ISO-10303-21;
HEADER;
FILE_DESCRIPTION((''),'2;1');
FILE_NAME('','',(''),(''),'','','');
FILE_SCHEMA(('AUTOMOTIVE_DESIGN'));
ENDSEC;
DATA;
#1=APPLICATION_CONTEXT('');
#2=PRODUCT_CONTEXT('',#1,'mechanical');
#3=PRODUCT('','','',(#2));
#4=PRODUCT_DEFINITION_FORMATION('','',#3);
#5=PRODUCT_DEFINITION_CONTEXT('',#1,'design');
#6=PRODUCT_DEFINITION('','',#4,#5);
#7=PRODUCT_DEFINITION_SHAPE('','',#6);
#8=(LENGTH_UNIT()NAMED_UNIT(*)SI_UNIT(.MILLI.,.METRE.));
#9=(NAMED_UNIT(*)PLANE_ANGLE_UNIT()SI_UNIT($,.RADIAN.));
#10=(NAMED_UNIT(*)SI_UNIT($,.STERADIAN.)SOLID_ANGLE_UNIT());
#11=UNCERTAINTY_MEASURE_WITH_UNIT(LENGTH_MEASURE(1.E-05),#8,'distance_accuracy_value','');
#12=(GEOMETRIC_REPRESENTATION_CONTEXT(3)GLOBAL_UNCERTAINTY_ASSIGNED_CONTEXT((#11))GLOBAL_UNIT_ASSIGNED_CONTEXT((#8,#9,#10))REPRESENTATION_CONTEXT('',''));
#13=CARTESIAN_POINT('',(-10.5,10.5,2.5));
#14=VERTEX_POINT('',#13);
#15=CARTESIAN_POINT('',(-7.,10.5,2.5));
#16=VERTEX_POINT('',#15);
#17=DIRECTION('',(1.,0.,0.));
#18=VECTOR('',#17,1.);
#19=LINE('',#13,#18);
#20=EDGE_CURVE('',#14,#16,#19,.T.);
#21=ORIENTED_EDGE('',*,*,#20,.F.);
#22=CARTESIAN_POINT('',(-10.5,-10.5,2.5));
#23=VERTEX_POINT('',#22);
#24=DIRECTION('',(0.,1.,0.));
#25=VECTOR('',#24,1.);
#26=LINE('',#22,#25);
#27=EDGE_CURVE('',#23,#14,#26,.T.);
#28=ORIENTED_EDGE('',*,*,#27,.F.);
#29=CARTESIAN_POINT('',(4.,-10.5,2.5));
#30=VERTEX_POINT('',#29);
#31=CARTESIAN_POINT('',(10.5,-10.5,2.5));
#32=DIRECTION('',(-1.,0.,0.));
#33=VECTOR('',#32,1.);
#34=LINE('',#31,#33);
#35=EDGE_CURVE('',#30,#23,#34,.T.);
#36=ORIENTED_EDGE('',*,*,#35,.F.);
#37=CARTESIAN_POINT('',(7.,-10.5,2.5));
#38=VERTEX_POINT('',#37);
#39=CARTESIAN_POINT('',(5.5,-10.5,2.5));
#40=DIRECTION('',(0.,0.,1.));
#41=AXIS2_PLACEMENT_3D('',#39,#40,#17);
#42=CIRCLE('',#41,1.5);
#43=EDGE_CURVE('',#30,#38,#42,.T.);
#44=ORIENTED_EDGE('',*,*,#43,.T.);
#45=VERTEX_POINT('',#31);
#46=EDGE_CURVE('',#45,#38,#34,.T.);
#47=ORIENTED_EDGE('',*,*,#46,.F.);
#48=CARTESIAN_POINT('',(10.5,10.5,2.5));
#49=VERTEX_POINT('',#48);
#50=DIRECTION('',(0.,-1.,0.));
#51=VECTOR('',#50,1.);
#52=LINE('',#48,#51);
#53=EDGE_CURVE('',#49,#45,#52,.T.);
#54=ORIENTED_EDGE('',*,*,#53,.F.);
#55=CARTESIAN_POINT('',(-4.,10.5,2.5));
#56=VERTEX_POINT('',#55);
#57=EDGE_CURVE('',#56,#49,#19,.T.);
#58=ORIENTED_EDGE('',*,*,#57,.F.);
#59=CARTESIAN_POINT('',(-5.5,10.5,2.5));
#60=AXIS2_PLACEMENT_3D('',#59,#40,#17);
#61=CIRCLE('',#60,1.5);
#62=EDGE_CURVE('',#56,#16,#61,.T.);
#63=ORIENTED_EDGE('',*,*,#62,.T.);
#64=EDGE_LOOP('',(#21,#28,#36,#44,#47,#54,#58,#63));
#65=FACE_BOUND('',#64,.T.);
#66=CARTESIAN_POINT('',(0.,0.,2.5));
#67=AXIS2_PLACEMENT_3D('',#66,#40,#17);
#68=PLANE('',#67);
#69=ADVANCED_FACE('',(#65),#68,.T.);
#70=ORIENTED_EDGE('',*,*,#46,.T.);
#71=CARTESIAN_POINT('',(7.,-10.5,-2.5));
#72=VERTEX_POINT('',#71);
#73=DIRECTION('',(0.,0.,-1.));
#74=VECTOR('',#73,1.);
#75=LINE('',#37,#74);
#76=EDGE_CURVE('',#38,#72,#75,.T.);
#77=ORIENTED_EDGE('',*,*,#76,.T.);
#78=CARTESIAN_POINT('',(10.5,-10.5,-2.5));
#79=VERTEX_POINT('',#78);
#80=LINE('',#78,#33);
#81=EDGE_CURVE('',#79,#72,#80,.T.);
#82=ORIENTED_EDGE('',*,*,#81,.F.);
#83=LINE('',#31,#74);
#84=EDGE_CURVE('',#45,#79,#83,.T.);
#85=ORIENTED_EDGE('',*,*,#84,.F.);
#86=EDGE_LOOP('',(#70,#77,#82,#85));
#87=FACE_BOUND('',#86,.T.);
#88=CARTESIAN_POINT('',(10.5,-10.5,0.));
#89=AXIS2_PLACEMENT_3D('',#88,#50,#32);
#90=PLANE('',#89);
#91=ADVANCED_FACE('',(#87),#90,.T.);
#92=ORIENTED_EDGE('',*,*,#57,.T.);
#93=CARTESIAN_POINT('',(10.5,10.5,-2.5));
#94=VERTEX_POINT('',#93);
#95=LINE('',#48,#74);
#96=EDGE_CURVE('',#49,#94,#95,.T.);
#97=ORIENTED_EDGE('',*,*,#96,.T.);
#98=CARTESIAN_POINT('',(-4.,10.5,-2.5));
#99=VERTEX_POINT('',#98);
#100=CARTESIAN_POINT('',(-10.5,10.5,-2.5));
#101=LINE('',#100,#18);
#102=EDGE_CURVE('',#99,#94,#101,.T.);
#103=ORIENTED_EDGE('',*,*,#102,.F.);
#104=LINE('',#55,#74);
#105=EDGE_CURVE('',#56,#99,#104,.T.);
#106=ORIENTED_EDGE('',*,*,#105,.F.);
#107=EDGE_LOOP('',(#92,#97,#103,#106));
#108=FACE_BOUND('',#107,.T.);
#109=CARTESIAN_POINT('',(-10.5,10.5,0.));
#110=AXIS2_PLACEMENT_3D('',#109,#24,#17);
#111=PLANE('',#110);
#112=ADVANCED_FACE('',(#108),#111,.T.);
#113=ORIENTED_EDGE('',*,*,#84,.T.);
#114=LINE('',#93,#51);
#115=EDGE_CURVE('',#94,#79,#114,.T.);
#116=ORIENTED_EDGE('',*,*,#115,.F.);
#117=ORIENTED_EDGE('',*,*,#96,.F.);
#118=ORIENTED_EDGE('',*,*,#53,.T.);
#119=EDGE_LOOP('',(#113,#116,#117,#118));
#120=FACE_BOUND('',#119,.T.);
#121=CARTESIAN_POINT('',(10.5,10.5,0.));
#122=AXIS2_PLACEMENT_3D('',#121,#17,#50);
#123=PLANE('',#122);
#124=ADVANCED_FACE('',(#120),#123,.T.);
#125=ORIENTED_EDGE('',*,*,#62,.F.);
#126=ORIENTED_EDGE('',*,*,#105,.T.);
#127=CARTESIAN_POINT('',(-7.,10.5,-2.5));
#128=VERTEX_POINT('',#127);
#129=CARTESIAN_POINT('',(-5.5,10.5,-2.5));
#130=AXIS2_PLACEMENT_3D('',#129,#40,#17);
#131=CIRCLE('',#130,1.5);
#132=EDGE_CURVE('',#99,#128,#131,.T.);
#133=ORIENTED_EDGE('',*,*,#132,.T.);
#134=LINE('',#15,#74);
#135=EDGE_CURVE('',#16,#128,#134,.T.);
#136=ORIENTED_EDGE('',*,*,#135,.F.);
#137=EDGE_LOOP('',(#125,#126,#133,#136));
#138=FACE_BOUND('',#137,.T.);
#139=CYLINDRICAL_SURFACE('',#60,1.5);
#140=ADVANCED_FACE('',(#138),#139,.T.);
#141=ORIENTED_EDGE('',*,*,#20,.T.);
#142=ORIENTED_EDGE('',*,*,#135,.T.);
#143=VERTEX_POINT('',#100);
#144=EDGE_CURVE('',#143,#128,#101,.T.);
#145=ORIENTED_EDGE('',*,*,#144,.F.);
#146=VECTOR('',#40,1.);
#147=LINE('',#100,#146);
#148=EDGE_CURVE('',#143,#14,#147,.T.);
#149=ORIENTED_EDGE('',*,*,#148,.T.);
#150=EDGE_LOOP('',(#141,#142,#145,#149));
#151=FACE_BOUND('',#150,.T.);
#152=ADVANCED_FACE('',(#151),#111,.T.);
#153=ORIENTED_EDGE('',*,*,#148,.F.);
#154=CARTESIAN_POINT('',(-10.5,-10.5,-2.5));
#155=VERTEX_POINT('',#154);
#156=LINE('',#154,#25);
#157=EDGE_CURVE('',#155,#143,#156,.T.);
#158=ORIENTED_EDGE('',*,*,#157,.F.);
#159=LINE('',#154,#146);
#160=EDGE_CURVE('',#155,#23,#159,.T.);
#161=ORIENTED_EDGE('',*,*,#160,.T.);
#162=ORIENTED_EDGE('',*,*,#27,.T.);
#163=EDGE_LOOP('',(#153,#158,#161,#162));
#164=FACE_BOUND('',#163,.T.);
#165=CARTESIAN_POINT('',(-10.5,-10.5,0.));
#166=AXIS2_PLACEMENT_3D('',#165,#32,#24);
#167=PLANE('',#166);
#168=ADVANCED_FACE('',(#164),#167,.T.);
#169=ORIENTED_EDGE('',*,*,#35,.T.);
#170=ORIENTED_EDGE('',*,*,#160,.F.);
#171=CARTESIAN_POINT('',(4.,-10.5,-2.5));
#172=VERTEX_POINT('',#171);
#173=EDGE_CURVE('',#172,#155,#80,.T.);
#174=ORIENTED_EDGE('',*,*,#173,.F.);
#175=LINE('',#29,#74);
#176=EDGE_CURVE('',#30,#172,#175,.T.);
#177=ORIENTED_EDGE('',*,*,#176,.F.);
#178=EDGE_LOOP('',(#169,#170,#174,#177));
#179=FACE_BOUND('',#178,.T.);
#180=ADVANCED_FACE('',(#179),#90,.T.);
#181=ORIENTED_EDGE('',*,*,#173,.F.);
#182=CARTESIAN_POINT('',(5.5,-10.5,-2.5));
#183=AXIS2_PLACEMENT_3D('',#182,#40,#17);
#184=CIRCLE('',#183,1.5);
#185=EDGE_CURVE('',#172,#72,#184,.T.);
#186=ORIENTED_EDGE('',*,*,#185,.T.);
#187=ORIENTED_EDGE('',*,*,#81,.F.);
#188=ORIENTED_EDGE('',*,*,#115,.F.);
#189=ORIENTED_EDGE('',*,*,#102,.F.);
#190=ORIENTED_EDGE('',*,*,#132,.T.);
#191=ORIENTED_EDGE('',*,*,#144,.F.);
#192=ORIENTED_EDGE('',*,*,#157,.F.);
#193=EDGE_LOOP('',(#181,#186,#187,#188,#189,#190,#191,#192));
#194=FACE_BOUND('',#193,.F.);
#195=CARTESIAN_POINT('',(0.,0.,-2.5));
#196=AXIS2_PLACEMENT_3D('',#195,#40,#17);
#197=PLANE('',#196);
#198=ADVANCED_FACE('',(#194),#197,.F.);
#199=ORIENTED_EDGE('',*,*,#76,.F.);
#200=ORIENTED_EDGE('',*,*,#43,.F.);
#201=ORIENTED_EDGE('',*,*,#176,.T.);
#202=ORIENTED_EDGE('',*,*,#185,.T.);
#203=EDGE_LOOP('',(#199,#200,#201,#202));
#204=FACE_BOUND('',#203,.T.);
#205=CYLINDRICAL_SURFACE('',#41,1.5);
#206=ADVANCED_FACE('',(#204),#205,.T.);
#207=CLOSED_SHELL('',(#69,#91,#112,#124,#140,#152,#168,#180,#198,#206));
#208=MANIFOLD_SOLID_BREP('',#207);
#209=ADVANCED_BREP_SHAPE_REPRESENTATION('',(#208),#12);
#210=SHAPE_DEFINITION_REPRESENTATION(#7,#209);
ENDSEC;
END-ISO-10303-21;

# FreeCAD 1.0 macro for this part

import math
import FreeCAD as App
import Part
import Sketcher
from FreeCAD import Vector

doc = App.newDocument("Part")
body = doc.addObject("PartDesign::Body", "Body")

# Sketch on XY plane
sketch1 = doc.addObject("Sketcher::SketchObject", "Sketch")
body.addObject(sketch1)
sketch1.AttachmentSupport = (doc.XY_Plane, [""])
sketch1.MapMode = "FlatFace"
sketch1.addGeometry(Part.LineSegment(Vector(10.5, 10.5, 0), Vector(-10.5, 10.5, 0)), False)
sketch1.addGeometry(Part.LineSegment(Vector(-10.5, 10.5, 0), Vector(-10.5, -10.5, 0)), False)
sketch1.addGeometry(Part.LineSegment(Vector(-10.5, -10.5, 0), Vector(10.5, -10.5, 0)), False)
sketch1.addGeometry(Part.LineSegment(Vector(10.5, -10.5, 0), Vector(10.5, 10.5, 0)), False)
sketch1.addConstraint(Sketcher.Constraint("Coincident", 0, 2, 1, 1))
sketch1.addConstraint(Sketcher.Constraint("Coincident", 1, 2, 2, 1))
sketch1.addConstraint(Sketcher.Constraint("Coincident", 2, 2, 3, 1))
sketch1.addConstraint(Sketcher.Constraint("Coincident", 3, 2, 0, 1))
sketch1.addConstraint(Sketcher.Constraint("Horizontal", 0))
sketch1.addConstraint(Sketcher.Constraint("Vertical", 1))
sketch1.addConstraint(Sketcher.Constraint("Horizontal", 2))
sketch1.addConstraint(Sketcher.Constraint("Vertical", 3))
sketch1.addConstraint(Sketcher.Constraint("Symmetric", 0, 2, 2, 2, -1, 1))
sketch1.addConstraint(Sketcher.Constraint("Equal", 2, 1))
sketch1.addConstraint(Sketcher.Constraint("DistanceX", 0, 2, 0, 1, 21.0))
pad1 = doc.addObject("PartDesign::Pad", "Pad")
body.addObject(pad1)
pad1.Profile = sketch1
pad1.Length = 5
pad1.Midplane = True

# Sketch on XY plane
sketch2 = doc.addObject("Sketcher::SketchObject", "Sketch001")
body.addObject(sketch2)
sketch2.AttachmentSupport = (doc.XY_Plane, [""])
sketch2.MapMode = "FlatFace"
sketch2.AttachmentOffset = App.Placement(Vector(0, 0, 2.5), App.Rotation())
sketch2.addGeometry(Part.LineSegment(Vector(-7, 10.5, 0), Vector(-4, 10.5, 0)), False)
sketch2.addGeometry(Part.ArcOfCircle(Part.Circle(Vector(-5.5, 10.5, 0), Vector(0, 0, 1), 1.5), math.radians(0), math.radians(180)), False)
sketch2.addGeometry(Part.ArcOfCircle(Part.Circle(Vector(5.5, -10.5, 0), Vector(0, 0, 1), 1.5), math.radians(180), math.radians(360)), False)
sketch2.addGeometry(Part.LineSegment(Vector(7, -10.5, 0), Vector(4, -10.5, 0)), False)
sketch2.addConstraint(Sketcher.Constraint("Coincident", 0, 1, 1, 2))
sketch2.addConstraint(Sketcher.Constraint("Coincident", 1, 1, 0, 2))
sketch2.addConstraint(Sketcher.Constraint("Coincident", 2, 1, 3, 2))
sketch2.addConstraint(Sketcher.Constraint("Coincident", 3, 1, 2, 2))
sketch2.addConstraint(Sketcher.Constraint("Horizontal", 0))
sketch2.addConstraint(Sketcher.Constraint("Horizontal", 3))
sketch2.addConstraint(Sketcher.Constraint("Equal", 1, 2))
sketch2.addConstraint(Sketcher.Constraint("Symmetric", 1, 3, 2, 3, -1, 1))
sketch2.addConstraint(Sketcher.Constraint("Horizontal", 1, 3, 0, 1))
sketch2.addConstraint(Sketcher.Constraint("Radius", 1, 1.5))
sketch2.addConstraint(Sketcher.Constraint("DistanceX", 1, 3, -1, 1, 5.5))
sketch2.addConstraint(Sketcher.Constraint("DistanceY", 2, 3, 1, 3, 21.0))
sketch2.addConstraint(Sketcher.Constraint("DistanceY", 2, 1, 1, 1, 21.0))
pad2 = doc.addObject("PartDesign::Pad", "Pad001")
body.addObject(pad2)
pad2.Profile = sketch2
pad2.Length = 5
pad2.Reversed = True

doc.recompute()
